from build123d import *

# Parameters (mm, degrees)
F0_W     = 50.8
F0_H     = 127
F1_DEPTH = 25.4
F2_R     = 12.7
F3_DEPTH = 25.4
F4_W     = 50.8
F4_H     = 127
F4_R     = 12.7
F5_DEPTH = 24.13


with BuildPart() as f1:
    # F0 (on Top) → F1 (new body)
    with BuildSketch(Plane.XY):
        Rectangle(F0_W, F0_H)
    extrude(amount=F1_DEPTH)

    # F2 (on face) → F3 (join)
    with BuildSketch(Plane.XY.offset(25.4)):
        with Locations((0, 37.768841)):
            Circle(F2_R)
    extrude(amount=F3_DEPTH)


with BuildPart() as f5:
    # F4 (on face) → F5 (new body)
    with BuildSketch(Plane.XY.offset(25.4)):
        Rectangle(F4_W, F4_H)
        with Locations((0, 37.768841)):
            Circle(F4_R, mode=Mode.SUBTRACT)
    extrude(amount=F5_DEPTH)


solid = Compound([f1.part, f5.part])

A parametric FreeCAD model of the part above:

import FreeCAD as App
import Part
import Sketcher
from FreeCAD import Vector
Q = App.Units.Quantity

doc = App.newDocument("Part")
body = doc.addObject("PartDesign::Body", "Body")

sketch1 = body.newObject("Sketcher::SketchObject", "Sketch")
sketch1.AttachmentSupport = (doc.getObject("XY_Plane"), [""])
sketch1.MapMode = "FlatFace"
sketch1.addGeometry([
    Part.LineSegment(Vector(-25.4, 63.5, 0), Vector(-25.4, -63.5, 0)),
    Part.LineSegment(Vector(-25.4, -63.5, 0), Vector(25.4, -63.5, 0)),
    Part.LineSegment(Vector(25.4, -63.5, 0), Vector(25.4, 63.5, 0)),
    Part.LineSegment(Vector(25.4, 63.5, 0), Vector(-25.4, 63.5, 0)),
], False)
sketch1.addConstraint([
    Sketcher.Constraint("Coincident", 0, 2, 1, 1),
    Sketcher.Constraint("Coincident", 1, 2, 2, 1),
    Sketcher.Constraint("Coincident", 2, 2, 3, 1),
    Sketcher.Constraint("Coincident", 3, 2, 0, 1),
    Sketcher.Constraint("Vertical", 0),
    Sketcher.Constraint("Horizontal", 1),
    Sketcher.Constraint("Vertical", 2),
    Sketcher.Constraint("Horizontal", 3),
    Sketcher.Constraint("Symmetric", 0, 2, 2, 2, -1, 1),
    Sketcher.Constraint("DistanceX", 1, 1, 1, 2, Q("2 in")),
    Sketcher.Constraint("DistanceY", 0, 2, 0, 1, Q("5 in")),
])
pad1 = body.newObject("PartDesign::Pad", "Pad")
pad1.Profile = sketch1
pad1.Length = Q("1 in")

sketch2 = body.newObject("Sketcher::SketchObject", "Sketch001")
sketch2.AttachmentSupport = (doc.getObject("XY_Plane"), [""])
sketch2.MapMode = "FlatFace"
sketch2.AttachmentOffset = App.Placement(Vector(0, 0, 1 * 25.4), App.Rotation())
sketch2.addGeometry(Part.Circle(Vector(0, 37.768841, 0), Vector(0, 0, 1), 12.7), False)
sketch2.addConstraint([
    Sketcher.Constraint("PointOnObject", 0, 3, -2),
    Sketcher.Constraint("Diameter", 0, Q("1 in")),
    Sketcher.Constraint("DistanceY", -1, 1, 0, 3, Q("37.768841 mm")),
])
pad2 = body.newObject("PartDesign::Pad", "Pad001")
pad2.Profile = sketch2
pad2.Length = Q("1 in")
body2 = doc.addObject("PartDesign::Body", "Body001")

sketch3 = body2.newObject("Sketcher::SketchObject", "Sketch002")
sketch3.AttachmentSupport = (doc.getObject("XY_Plane001"), [""])
sketch3.MapMode = "FlatFace"
sketch3.AttachmentOffset = App.Placement(Vector(0, 0, 1 * 25.4), App.Rotation())
sketch3.addGeometry([
    Part.LineSegment(Vector(-25.4, 63.5, 0), Vector(-25.4, -63.5, 0)),
    Part.LineSegment(Vector(-25.4, -63.5, 0), Vector(25.4, -63.5, 0)),
    Part.LineSegment(Vector(25.4, -63.5, 0), Vector(25.4, 63.5, 0)),
    Part.LineSegment(Vector(25.4, 63.5, 0), Vector(-25.4, 63.5, 0)),
    Part.Circle(Vector(0, 37.768841, 0), Vector(0, 0, 1), 12.7),
], False)
sketch3.addConstraint([
    Sketcher.Constraint("Coincident", 0, 2, 1, 1),
    Sketcher.Constraint("Coincident", 1, 2, 2, 1),
    Sketcher.Constraint("Coincident", 2, 2, 3, 1),
    Sketcher.Constraint("Coincident", 3, 2, 0, 1),
    Sketcher.Constraint("Vertical", 0),
    Sketcher.Constraint("Horizontal", 1),
    Sketcher.Constraint("Vertical", 2),
    Sketcher.Constraint("Horizontal", 3),
    Sketcher.Constraint("Symmetric", 0, 2, 2, 2, -1, 1),
    Sketcher.Constraint("PointOnObject", 4, 3, -2),
    Sketcher.Constraint("Diameter", 4, Q("1 in")),
    Sketcher.Constraint("DistanceX", 1, 1, 1, 2, Q("2 in")),
    Sketcher.Constraint("DistanceY", 0, 2, 0, 1, Q("5 in")),
    Sketcher.Constraint("DistanceY", -1, 1, 4, 3, Q("37.768841 mm")),
])
pad3 = body2.newObject("PartDesign::Pad", "Pad002")
pad3.Profile = sketch3
pad3.Length = Q("0.95 in")

doc.recompute()
